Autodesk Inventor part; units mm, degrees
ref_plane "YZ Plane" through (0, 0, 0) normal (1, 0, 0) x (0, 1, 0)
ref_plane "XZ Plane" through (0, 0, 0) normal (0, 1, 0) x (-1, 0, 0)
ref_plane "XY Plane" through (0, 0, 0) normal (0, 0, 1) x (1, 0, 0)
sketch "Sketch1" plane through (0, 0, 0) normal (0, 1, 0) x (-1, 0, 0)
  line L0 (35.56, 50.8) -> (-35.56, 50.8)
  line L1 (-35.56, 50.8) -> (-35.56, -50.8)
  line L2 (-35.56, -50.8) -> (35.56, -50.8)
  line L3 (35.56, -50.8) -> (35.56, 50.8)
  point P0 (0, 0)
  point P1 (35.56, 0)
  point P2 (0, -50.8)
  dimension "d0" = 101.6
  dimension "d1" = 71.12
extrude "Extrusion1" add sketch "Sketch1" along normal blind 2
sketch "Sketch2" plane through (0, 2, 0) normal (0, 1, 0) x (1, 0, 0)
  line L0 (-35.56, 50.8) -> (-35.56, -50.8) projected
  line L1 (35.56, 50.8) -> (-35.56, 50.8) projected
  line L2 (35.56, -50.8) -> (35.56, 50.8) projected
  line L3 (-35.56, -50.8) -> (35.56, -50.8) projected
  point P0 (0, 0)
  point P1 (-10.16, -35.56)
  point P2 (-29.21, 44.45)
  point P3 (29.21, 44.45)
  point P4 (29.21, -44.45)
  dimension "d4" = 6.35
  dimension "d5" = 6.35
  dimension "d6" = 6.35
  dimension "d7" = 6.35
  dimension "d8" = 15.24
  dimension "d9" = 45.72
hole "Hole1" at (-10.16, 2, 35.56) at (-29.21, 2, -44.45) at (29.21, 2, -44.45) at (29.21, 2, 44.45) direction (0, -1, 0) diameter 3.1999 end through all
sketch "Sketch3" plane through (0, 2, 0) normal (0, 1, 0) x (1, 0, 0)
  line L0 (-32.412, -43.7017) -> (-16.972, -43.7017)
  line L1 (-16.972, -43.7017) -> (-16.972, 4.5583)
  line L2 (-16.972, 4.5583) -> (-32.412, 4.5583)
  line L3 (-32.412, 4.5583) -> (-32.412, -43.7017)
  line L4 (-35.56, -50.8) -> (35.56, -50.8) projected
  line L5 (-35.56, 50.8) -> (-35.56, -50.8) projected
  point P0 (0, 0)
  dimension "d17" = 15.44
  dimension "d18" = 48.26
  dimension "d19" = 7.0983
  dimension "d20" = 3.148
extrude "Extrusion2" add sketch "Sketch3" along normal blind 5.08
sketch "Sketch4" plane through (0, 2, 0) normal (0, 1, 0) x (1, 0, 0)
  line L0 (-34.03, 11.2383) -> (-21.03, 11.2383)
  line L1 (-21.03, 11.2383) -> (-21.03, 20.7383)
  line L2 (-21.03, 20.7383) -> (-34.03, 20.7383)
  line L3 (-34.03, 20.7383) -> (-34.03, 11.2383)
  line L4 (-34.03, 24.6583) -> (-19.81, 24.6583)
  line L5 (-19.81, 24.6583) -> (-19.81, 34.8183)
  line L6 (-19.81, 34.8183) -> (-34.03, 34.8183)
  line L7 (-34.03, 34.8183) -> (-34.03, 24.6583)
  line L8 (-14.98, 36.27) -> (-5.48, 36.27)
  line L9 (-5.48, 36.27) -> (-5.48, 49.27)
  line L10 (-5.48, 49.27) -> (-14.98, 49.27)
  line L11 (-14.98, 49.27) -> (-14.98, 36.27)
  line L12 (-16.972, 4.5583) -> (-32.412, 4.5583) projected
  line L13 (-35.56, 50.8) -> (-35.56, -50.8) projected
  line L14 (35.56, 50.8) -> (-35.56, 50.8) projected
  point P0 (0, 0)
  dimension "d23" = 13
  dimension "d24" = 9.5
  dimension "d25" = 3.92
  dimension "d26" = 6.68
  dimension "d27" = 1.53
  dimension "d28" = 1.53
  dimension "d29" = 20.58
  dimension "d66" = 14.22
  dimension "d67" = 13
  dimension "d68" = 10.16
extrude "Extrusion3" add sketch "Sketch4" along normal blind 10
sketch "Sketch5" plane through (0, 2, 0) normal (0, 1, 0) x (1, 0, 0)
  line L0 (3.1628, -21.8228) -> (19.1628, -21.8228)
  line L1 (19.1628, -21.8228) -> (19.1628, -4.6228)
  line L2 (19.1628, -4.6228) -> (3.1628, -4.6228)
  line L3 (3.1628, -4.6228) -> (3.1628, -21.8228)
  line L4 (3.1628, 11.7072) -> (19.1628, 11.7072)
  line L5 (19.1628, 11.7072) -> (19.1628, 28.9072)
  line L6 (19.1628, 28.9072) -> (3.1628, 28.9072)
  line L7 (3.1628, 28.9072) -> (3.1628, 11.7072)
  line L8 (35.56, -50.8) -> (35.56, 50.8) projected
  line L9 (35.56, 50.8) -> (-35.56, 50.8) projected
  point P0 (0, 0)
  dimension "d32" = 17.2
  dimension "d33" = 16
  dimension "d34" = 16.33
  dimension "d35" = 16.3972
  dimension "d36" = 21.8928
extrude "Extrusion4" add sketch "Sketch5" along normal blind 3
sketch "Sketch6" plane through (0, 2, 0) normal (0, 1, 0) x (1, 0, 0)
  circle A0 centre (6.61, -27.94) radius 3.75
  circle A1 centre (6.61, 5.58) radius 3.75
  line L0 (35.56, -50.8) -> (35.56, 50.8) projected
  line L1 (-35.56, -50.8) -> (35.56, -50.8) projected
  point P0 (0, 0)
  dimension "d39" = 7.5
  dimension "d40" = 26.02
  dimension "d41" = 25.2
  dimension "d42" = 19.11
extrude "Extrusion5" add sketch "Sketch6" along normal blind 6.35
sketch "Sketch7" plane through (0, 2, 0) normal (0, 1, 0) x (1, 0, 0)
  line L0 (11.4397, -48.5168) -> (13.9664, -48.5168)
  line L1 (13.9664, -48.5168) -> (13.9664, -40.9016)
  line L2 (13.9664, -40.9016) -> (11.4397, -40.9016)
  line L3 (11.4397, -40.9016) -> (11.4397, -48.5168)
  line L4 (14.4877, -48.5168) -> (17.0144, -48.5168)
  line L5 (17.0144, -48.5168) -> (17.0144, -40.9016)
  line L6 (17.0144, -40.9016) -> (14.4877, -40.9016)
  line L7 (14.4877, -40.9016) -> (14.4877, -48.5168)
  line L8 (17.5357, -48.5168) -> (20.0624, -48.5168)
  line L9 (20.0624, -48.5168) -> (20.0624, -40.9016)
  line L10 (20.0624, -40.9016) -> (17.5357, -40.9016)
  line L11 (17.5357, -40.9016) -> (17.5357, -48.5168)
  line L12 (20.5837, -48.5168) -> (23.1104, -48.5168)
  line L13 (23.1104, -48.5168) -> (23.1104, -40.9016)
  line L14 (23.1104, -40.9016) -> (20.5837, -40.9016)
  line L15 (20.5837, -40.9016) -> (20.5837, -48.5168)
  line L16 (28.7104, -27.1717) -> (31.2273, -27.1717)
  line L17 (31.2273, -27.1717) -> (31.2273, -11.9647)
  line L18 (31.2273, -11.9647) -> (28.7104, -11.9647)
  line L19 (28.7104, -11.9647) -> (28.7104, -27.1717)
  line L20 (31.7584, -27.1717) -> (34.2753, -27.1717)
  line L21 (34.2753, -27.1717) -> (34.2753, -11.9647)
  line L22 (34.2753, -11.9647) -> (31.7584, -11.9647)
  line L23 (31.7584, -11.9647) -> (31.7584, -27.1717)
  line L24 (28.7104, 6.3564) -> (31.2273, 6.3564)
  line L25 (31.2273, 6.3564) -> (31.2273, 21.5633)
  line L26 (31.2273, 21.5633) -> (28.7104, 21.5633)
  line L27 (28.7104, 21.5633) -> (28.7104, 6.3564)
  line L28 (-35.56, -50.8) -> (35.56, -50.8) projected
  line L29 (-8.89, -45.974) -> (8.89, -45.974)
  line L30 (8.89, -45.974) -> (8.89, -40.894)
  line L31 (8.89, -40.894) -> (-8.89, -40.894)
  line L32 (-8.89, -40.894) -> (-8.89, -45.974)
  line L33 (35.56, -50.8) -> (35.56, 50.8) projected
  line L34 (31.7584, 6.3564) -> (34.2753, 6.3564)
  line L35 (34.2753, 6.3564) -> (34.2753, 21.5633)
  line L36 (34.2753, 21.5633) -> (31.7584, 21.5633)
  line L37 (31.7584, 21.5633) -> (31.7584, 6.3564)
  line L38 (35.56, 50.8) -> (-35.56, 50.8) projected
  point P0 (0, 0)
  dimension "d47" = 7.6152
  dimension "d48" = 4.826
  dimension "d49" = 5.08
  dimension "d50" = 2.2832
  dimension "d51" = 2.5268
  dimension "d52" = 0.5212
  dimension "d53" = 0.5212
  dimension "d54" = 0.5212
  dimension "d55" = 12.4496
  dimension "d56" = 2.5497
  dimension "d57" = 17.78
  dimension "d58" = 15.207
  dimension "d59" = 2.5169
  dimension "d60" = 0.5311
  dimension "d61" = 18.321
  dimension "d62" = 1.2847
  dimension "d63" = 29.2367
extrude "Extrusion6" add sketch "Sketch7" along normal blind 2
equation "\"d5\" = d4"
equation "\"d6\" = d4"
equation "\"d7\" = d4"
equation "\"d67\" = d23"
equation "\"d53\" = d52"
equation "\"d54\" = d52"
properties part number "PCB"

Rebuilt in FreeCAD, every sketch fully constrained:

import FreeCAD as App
import Part
import Sketcher
Q = App.Units.Quantity


def add_polygon(sketch, points):
    """Adds a closed chain of lines whose ends are joined by coincident constraints."""
    first, n = sketch.GeometryCount, len(points)
    for a, b in zip(points, points[1:] + points[:1]):
        sketch.addGeometry(Part.LineSegment(App.Vector(*a, 0), App.Vector(*b, 0)), False)
    for i in range(n):
        sketch.addConstraint(Sketcher.Constraint("Coincident", first + i, 2, first + (i + 1) % n, 1))

doc = App.newDocument("Part")
body = doc.addObject("PartDesign::Body", "Body")

# Sketch on XZ plane
sketch1 = doc.addObject("Sketcher::SketchObject", "Sketch")
body.addObject(sketch1)
sketch1.AttachmentSupport = (doc.XZ_Plane, [""])
sketch1.MapMode = "FlatFace"
add_polygon(sketch1, [(-36, -51), (-36, 51), (36, 51), (36, -51)])  # lines 0-3
sketch1.addConstraint([
    Sketcher.Constraint("Vertical", 0),
    Sketcher.Constraint("Horizontal", 1),
    Sketcher.Constraint("Vertical", 2),
    Sketcher.Constraint("Horizontal", 3),
    Sketcher.Constraint("Symmetric", 0, 2, 2, 2, -1, 1),
    Sketcher.Constraint("DistanceY", 0, 1, 0, 2, Q("4 in")),
    Sketcher.Constraint("DistanceX", 1, 1, 1, 2, Q("2.8 in")),
])
pad1 = doc.addObject("PartDesign::Pad", "Pad")
body.addObject(pad1)
pad1.Profile = sketch1
pad1.Length = 2
pad1.Reversed = True

# Sketch on XZ plane
sketch2 = doc.addObject("Sketcher::SketchObject", "Sketch001")
body.addObject(sketch2)
sketch2.AttachmentSupport = (doc.XZ_Plane, [""])
sketch2.MapMode = "FlatFace"
sketch2.AttachmentOffset = App.Placement(App.Vector(0, 0, -2), App.Rotation())
sketch2.addGeometry([
    Part.Circle(App.Vector(-10.2, 35.6, 0), App.Vector(0, 0, 1), 1.6),
    Part.Circle(App.Vector(-29.2, -44.5, 0), App.Vector(0, 0, 1), 1.6),
    Part.Circle(App.Vector(29.2, -44.5, 0), App.Vector(0, 0, 1), 1.6),
    Part.Circle(App.Vector(29.2, 44.5, 0), App.Vector(0, 0, 1), 1.6),
], False)
sketch2.addConstraint([
    Sketcher.Constraint("Equal", 0, 1),
    Sketcher.Constraint("Equal", 1, 2),
    Sketcher.Constraint("Equal", 2, 3),
    Sketcher.Constraint("Symmetric", 1, 3, 3, 3, -1, 1),
    Sketcher.Constraint("Symmetric", 1, 3, 2, 3, -2),
    Sketcher.Constraint("DistanceX", 0, 3, -1, 1, Q("0.4 in")),
    Sketcher.Constraint("DistanceY", -1, 1, 0, 3, Q("1.4 in")),
    Sketcher.Constraint("DistanceX", 1, 3, 2, 3, Q("2.3 in")),
    Sketcher.Constraint("DistanceY", 2, 3, 3, 3, Q("3.5 in")),
    Sketcher.Constraint("Diameter", 0, 3.2),
])
doc.recompute()
hole = doc.addObject("PartDesign::Hole", "Hole")
body.addObject(hole)
hole.Profile = sketch2
hole.ThreadType = "None"
hole.Diameter = 3.1999
hole.DepthType = "ThroughAll"
hole.Reversed = True

# Sketch on XZ plane
sketch3 = doc.addObject("Sketcher::SketchObject", "Sketch002")
body.addObject(sketch3)
sketch3.AttachmentSupport = (doc.XZ_Plane, [""])
sketch3.MapMode = "FlatFace"
sketch3.AttachmentOffset = App.Placement(App.Vector(0, 0, -2), App.Rotation())
add_polygon(sketch3, [(-32, -5), (-32, 44), (-17, 44), (-17, -5)])  # lines 0-3
sketch3.addConstraint([
    Sketcher.Constraint("Vertical", 0),
    Sketcher.Constraint("Horizontal", 1),
    Sketcher.Constraint("Vertical", 2),
    Sketcher.Constraint("Horizontal", 3),
    Sketcher.Constraint("DistanceY", 0, 1, 0, 2, Q("1.9 in")),
    Sketcher.Constraint("DistanceX", 1, 1, 1, 2, 15.44),
    Sketcher.Constraint("DistanceX", 1, 2, -1, 1, Q("0.6682 in")),
    Sketcher.Constraint("DistanceY", -1, 1, 0, 2, 43.7017),
])
pad2 = doc.addObject("PartDesign::Pad", "Pad001")
body.addObject(pad2)
pad2.Profile = sketch3
pad2.Length = Q("0.2 in")
pad2.Reversed = True

# Sketch on XZ plane
sketch4 = doc.addObject("Sketcher::SketchObject", "Sketch003")
body.addObject(sketch4)
sketch4.AttachmentSupport = (doc.XZ_Plane, [""])
sketch4.MapMode = "FlatFace"
sketch4.AttachmentOffset = App.Placement(App.Vector(0, 0, -2), App.Rotation())
add_polygon(sketch4, [(-34, -21), (-34, -11), (-21, -11), (-21, -21)])  # lines 0-3
add_polygon(sketch4, [(-34, -35), (-34, -25), (-20, -25), (-20, -35)])  # lines 4-7
add_polygon(sketch4, [(-15, -49), (-15, -36), (-5, -36), (-5, -49)])  # lines 8-11
sketch4.addConstraint([
    Sketcher.Constraint("Vertical", 0),
    Sketcher.Constraint("Horizontal", 1),
    Sketcher.Constraint("Vertical", 2),
    Sketcher.Constraint("Horizontal", 3),
    Sketcher.Constraint("Vertical", 4),
    Sketcher.Constraint("Horizontal", 5),
    Sketcher.Constraint("Vertical", 6),
    Sketcher.Constraint("Horizontal", 7),
    Sketcher.Constraint("Vertical", 8),
    Sketcher.Constraint("Horizontal", 9),
    Sketcher.Constraint("Vertical", 10),
    Sketcher.Constraint("Horizontal", 11),
    Sketcher.Constraint("Vertical", 3, 2, 4, 2),
    Sketcher.Constraint("Equal", 11, 0),
    Sketcher.Constraint("Equal", 3, 8),
    Sketcher.Constraint("DistanceY", 4, 1, 4, 2, Q("0.4 in")),
    Sketcher.Constraint("DistanceX", 1, 1, 1, 2, Q("0.5118 in")),
    Sketcher.Constraint("DistanceX", 5, 1, 5, 2, 14.22),
    Sketcher.Constraint("DistanceX", 9, 1, 9, 2, 9.5),
    Sketcher.Constraint("DistanceY", 4, 2, 3, 2, 3.92),
    Sketcher.Constraint("DistanceX", 7, 2, 8, 2, Q("0.75 in")),
    Sketcher.Constraint("DistanceY", 4, 2, -1, 1, Q("0.9708 in")),
    Sketcher.Constraint("DistanceX", 0, 2, -1, 1, 34.03),
    Sketcher.Constraint("DistanceY", 8, 2, -1, 1, 36.27),
])
pad3 = doc.addObject("PartDesign::Pad", "Pad002")
body.addObject(pad3)
pad3.Profile = sketch4
pad3.Length = Q("0.3937008 in")
pad3.Reversed = True

# Sketch on XZ plane
sketch5 = doc.addObject("Sketcher::SketchObject", "Sketch004")
body.addObject(sketch5)
sketch5.AttachmentSupport = (doc.XZ_Plane, [""])
sketch5.MapMode = "FlatFace"
sketch5.AttachmentOffset = App.Placement(App.Vector(0, 0, -2), App.Rotation())
add_polygon(sketch5, [(3, 5), (3, 22), (19, 22), (19, 5)])  # lines 0-3
add_polygon(sketch5, [(3, -29), (3, -12), (19, -12), (19, -29)])  # lines 4-7
sketch5.addConstraint([
    Sketcher.Constraint("Vertical", 0),
    Sketcher.Constraint("Horizontal", 1),
    Sketcher.Constraint("Vertical", 2),
    Sketcher.Constraint("Horizontal", 3),
    Sketcher.Constraint("Vertical", 4),
    Sketcher.Constraint("Horizontal", 5),
    Sketcher.Constraint("Vertical", 6),
    Sketcher.Constraint("Horizontal", 7),
    Sketcher.Constraint("Vertical", 3, 2, 4, 2),
    Sketcher.Constraint("Vertical", 2, 2, 5, 2),
    Sketcher.Constraint("Equal", 2, 4),
    Sketcher.Constraint("DistanceX", 1, 1, 1, 2, 16.0),
    Sketcher.Constraint("DistanceY", 0, 1, 0, 2, 17.2),
    Sketcher.Constraint("DistanceY", 4, 2, 3, 2, 16.33),
    Sketcher.Constraint("DistanceY", -1, 1, 2, 2, Q("0.182 in")),
    Sketcher.Constraint("DistanceX", -1, 1, 0, 2, 3.1628),
])
pad4 = doc.addObject("PartDesign::Pad", "Pad003")
body.addObject(pad4)
pad4.Profile = sketch5
pad4.Length = Q("0.1181102 in")
pad4.Reversed = True

# Sketch on XZ plane
sketch6 = doc.addObject("Sketcher::SketchObject", "Sketch005")
body.addObject(sketch6)
sketch6.AttachmentSupport = (doc.XZ_Plane, [""])
sketch6.MapMode = "FlatFace"
sketch6.AttachmentOffset = App.Placement(App.Vector(0, 0, -2), App.Rotation())
sketch6.addGeometry([
    Part.Circle(App.Vector(6.6, 27.9, 0), App.Vector(0, 0, 1), 3.8),
    Part.Circle(App.Vector(6.6, -5.6, 0), App.Vector(0, 0, 1), 3.8),
], False)
sketch6.addConstraint([
    Sketcher.Constraint("Equal", 0, 1),
    Sketcher.Constraint("Vertical", 0, 3, 1, 3),
    Sketcher.Constraint("Diameter", 0, 7.5),
    Sketcher.Constraint("DistanceY", -1, 1, 0, 3, Q("1.1 in")),
    Sketcher.Constraint("DistanceX", -1, 1, 0, 3, 6.61),
    Sketcher.Constraint("DistanceY", 1, 3, -1, 1, 5.58),
])
pad5 = doc.addObject("PartDesign::Pad", "Pad004")
body.addObject(pad5)
pad5.Profile = sketch6
pad5.Length = Q("0.25 in")
pad5.Reversed = True

# Sketch on XZ plane
sketch7 = doc.addObject("Sketcher::SketchObject", "Sketch006")
body.addObject(sketch7)
sketch7.AttachmentSupport = (doc.XZ_Plane, [""])
sketch7.MapMode = "FlatFace"
sketch7.AttachmentOffset = App.Placement(App.Vector(0, 0, -2), App.Rotation())
add_polygon(sketch7, [(11.4, 40.9), (11.4, 48.5), (14, 48.5), (14, 40.9)])  # lines 0-3
add_polygon(sketch7, [(14.5, 40.9), (14.5, 48.5), (17, 48.5), (17, 40.9)])  # lines 4-7
add_polygon(sketch7, [(17.5, 40.9), (17.5, 48.5), (20.1, 48.5), (20.1, 40.9)])  # lines 8-11
add_polygon(sketch7, [(20.6, 40.9), (20.6, 48.5), (23.1, 48.5), (23.1, 40.9)])  # lines 12-15
add_polygon(sketch7, [(28.7, 12), (28.7, 27.2), (31.2, 27.2), (31.2, 12)])  # lines 16-19
add_polygon(sketch7, [(31.8, 12), (31.8, 27.2), (34.3, 27.2), (34.3, 12)])  # lines 20-23
add_polygon(sketch7, [(28.7, -21.6), (28.7, -6.4), (31.2, -6.4), (31.2, -21.6)])  # lines 24-27
add_polygon(sketch7, [(-8.9, 40.9), (-8.9, 46), (8.9, 46), (8.9, 40.9)])  # lines 28-31
add_polygon(sketch7, [(31.8, -21.6), (31.8, -6.4), (34.3, -6.4), (34.3, -21.6)])  # lines 32-35
sketch7.addConstraint([
    Sketcher.Constraint("Vertical", 0),
    Sketcher.Constraint("Horizontal", 1),
    Sketcher.Constraint("Vertical", 2),
    Sketcher.Constraint("Horizontal", 3),
    Sketcher.Constraint("Vertical", 4),
    Sketcher.Constraint("Horizontal", 5),
    Sketcher.Constraint("Vertical", 6),
    Sketcher.Constraint("Horizontal", 7),
    Sketcher.Constraint("Vertical", 8),
    Sketcher.Constraint("Horizontal", 9),
    Sketcher.Constraint("Vertical", 10),
    Sketcher.Constraint("Horizontal", 11),
    Sketcher.Constraint("Vertical", 12),
    Sketcher.Constraint("Horizontal", 13),
    Sketcher.Constraint("Vertical", 14),
    Sketcher.Constraint("Horizontal", 15),
    Sketcher.Constraint("Vertical", 16),
    Sketcher.Constraint("Horizontal", 17),
    Sketcher.Constraint("Vertical", 18),
    Sketcher.Constraint("Horizontal", 19),
    Sketcher.Constraint("Vertical", 20),
    Sketcher.Constraint("Horizontal", 21),
    Sketcher.Constraint("Vertical", 22),
    Sketcher.Constraint("Horizontal", 23),
    Sketcher.Constraint("Vertical", 24),
    Sketcher.Constraint("Horizontal", 25),
    Sketcher.Constraint("Vertical", 26),
    Sketcher.Constraint("Horizontal", 27),
    Sketcher.Constraint("Vertical", 28),
    Sketcher.Constraint("Horizontal", 29),
    Sketcher.Constraint("Vertical", 30),
    Sketcher.Constraint("Horizontal", 31),
    Sketcher.Constraint("Vertical", 32),
    Sketcher.Constraint("Horizontal", 33),
    Sketcher.Constraint("Vertical", 34),
    Sketcher.Constraint("Horizontal", 35),
    Sketcher.Constraint("Horizontal", 1, 2, 4, 2),
    Sketcher.Constraint("Horizontal", 3, 2, 6, 2),
    Sketcher.Constraint("Horizontal", 5, 2, 8, 2),
    Sketcher.Constraint("Horizontal", 7, 2, 10, 2),
    Sketcher.Constraint("Horizontal", 9, 2, 12, 2),
    Sketcher.Constraint("Horizontal", 11, 2, 14, 2),
    Sketcher.Constraint("Horizontal", 17, 2, 20, 2),
    Sketcher.Constraint("Horizontal", 19, 2, 22, 2),
    Sketcher.Constraint("Horizontal", 25, 2, 32, 2),
    Sketcher.Constraint("Horizontal", 27, 2, 34, 2),
    Sketcher.Constraint("Vertical", 19, 2, 24, 2),
    Sketcher.Constraint("Vertical", 18, 2, 25, 2),
    Sketcher.Constraint("Vertical", 23, 2, 32, 2),
    Sketcher.Constraint("Vertical", 22, 2, 33, 2),
    Sketcher.Constraint("Equal", 3, 5),
    Sketcher.Constraint("Equal", 7, 9),
    Sketcher.Constraint("Equal", 11, 13),
    Sketcher.Constraint("Equal", 19, 21),
    Sketcher.Constraint("Equal", 22, 24),
    Sketcher.Constraint("DistanceX", 29, 1, 29, 2, Q("0.7 in")),
    Sketcher.Constraint("DistanceY", 28, 1, 28, 2, Q("0.2 in")),
    Sketcher.Constraint("DistanceX", 17, 1, 17, 2, Q("0.0991 in")),
    Sketcher.Constraint("DistanceY", 0, 1, 0, 2, Q("0.2998 in")),
    Sketcher.Constraint("DistanceY", 16, 1, 16, 2, Q("0.5987 in")),
    Sketcher.Constraint("DistanceX", 1, 1, 1, 2, 2.5267),
    Sketcher.Constraint("DistanceX", 17, 2, 20, 2, Q("0.0209 in")),
    Sketcher.Constraint("DistanceY", 24, 2, 19, 2, Q("0.7213 in")),
    Sketcher.Constraint("DistanceX", 28, 2, -1, 1, Q("0.35 in")),
    Sketcher.Constraint("DistanceY", -1, 1, 28, 2, Q("1.81 in")),
    Sketcher.Constraint("DistanceX", 1, 2, 4, 2, 0.5213),
    Sketcher.Constraint("DistanceX", 5, 2, 8, 2, 0.5213),
    Sketcher.Constraint("DistanceX", 9, 2, 12, 2, 0.5213),
    Sketcher.Constraint("DistanceX", 29, 2, 0, 2, 2.5497),
    Sketcher.Constraint("DistanceY", -1, 1, 0, 2, Q("1.9101 in")),
    Sketcher.Constraint("DistanceX", -1, 1, 16, 2, 28.7104),
    Sketcher.Constraint("DistanceY", -1, 1, 16, 2, 27.1717),
])
pad6 = doc.addObject("PartDesign::Pad", "Pad005")
body.addObject(pad6)
pad6.Profile = sketch7
pad6.Length = 2
pad6.Reversed = True

doc.recompute()
